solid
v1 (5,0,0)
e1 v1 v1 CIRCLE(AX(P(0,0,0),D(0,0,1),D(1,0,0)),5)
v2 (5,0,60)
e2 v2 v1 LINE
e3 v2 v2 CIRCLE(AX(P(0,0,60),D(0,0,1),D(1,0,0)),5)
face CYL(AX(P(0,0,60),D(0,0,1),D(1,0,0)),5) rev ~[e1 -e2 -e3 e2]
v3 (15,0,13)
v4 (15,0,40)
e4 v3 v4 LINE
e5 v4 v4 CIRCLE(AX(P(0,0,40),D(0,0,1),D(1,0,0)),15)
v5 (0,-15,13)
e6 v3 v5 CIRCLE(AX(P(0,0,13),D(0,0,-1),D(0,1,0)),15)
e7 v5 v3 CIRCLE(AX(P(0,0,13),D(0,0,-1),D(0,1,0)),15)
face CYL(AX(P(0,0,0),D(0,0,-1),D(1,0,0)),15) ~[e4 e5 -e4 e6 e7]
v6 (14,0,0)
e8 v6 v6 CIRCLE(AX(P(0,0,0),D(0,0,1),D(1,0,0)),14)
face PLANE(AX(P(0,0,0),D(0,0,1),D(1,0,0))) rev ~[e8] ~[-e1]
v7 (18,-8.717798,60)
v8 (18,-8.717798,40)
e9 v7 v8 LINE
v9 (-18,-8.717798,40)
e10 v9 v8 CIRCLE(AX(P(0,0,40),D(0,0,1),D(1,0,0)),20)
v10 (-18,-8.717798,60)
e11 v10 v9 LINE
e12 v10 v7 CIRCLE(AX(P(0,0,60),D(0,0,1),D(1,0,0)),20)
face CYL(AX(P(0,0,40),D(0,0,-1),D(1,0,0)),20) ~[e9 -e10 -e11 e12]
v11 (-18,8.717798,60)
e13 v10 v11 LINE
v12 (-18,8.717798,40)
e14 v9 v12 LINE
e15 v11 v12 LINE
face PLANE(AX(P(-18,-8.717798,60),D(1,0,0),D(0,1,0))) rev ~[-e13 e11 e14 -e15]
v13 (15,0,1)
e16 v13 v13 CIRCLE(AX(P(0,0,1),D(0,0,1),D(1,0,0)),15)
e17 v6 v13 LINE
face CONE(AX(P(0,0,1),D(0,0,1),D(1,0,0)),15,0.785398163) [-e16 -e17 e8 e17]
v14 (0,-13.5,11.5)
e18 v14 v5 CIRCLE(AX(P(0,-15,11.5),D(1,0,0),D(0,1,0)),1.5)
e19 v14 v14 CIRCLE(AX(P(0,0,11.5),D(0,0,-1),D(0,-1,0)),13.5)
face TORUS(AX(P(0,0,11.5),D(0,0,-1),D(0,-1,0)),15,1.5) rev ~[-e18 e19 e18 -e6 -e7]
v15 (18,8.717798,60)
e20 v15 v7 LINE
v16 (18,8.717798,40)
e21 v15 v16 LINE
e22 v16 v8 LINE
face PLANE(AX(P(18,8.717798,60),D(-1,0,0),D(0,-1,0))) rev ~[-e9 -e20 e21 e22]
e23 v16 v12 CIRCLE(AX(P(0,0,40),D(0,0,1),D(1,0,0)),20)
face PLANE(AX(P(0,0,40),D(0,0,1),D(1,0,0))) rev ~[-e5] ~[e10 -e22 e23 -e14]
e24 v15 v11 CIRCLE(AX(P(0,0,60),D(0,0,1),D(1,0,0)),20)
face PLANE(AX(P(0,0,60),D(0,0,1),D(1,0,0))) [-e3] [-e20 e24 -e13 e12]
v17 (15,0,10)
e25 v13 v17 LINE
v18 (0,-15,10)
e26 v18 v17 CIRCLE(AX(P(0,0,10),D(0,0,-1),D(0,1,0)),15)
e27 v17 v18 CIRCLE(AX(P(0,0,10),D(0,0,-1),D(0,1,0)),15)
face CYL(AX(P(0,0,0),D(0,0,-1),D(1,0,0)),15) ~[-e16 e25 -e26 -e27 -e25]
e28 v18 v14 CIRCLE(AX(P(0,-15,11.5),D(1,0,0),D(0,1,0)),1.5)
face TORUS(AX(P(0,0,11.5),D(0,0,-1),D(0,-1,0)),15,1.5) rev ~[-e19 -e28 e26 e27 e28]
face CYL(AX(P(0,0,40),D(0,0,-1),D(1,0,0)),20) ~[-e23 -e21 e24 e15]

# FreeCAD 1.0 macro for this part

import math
import FreeCAD as App
import Part
import Sketcher
Q = App.Units.Quantity


def edges_at(feature, points):
    """Names of the edges that pass closest to the given points."""
    edges = feature.Shape.Edges
    near = lambda p: min(range(len(edges)), key=lambda i: edges[i].distToShape(Part.Vertex(*p))[0])
    return sorted({f"Edge{near(p) + 1}" for p in points})

doc = App.newDocument("Part")
body = doc.addObject("PartDesign::Body", "Body")

# Sketch on XY plane
sketch1 = body.newObject("Sketcher::SketchObject", "Sketch")
sketch1.AttachmentSupport = (doc.getObject("XY_Plane"), [""])
sketch1.MapMode = "FlatFace"
sketch1.addGeometry(Part.Circle(App.Vector(0, 0, 0), App.Vector(0, 0, 1), 15), False)
sketch1.addConstraint(Sketcher.Constraint("Coincident", 0, 3, -1, 1))
sketch1.addConstraint(Sketcher.Constraint("Diameter", 0, Q("30 mm")))
pad1 = body.newObject("PartDesign::Pad", "Pad")
pad1.Profile = sketch1
pad1.Length = 40

# Sketch on XY plane
sketch2 = body.newObject("Sketcher::SketchObject", "Sketch001")
sketch2.AttachmentSupport = (doc.getObject("XY_Plane"), [""])
sketch2.MapMode = "FlatFace"
sketch2.AttachmentOffset = App.Placement(App.Vector(0, 0, 40), App.Rotation())
sketch2.addGeometry(Part.Circle(App.Vector(0, 0, 0), App.Vector(0, 0, 1), 20), False)
sketch2.addConstraint(Sketcher.Constraint("Coincident", 0, 3, -1, 1))
sketch2.addConstraint(Sketcher.Constraint("Diameter", 0, Q("40 mm")))
pad2 = body.newObject("PartDesign::Pad", "Pad001")
pad2.Profile = sketch2
pad2.Length = 20

# Sketch on XY plane
sketch3 = body.newObject("Sketcher::SketchObject", "Sketch002")
sketch3.AttachmentSupport = (doc.getObject("XY_Plane"), [""])
sketch3.MapMode = "FlatFace"
sketch3.AttachmentOffset = App.Placement(App.Vector(0, 0, 60), App.Rotation())
sketch3.addGeometry(Part.Circle(App.Vector(0, 0, 0), App.Vector(0, 0, 1), 5), False)
sketch3.addConstraint(Sketcher.Constraint("Coincident", 0, 3, -1, 1))
sketch3.addConstraint(Sketcher.Constraint("Diameter", 0, Q("10 mm")))
pocket1 = body.newObject("PartDesign::Pocket", "Pocket")
pocket1.Profile = sketch3
pocket1.Type = "ThroughAll"

# Sketch on XY plane
sketch4 = body.newObject("Sketcher::SketchObject", "Sketch003")
sketch4.AttachmentSupport = (doc.getObject("XY_Plane"), [""])
sketch4.MapMode = "FlatFace"
sketch4.AttachmentOffset = App.Placement(App.Vector(0, 0, 60), App.Rotation())
sketch4.addGeometry(Part.LineSegment(App.Vector(-18, -8.717798, 0), App.Vector(-18, 8.717798, 0)), False)
sketch4.addGeometry(Part.ArcOfCircle(Part.Circle(App.Vector(0, 0, 0), App.Vector(0, 0, 1), 20), math.radians(154.158067), math.radians(205.841933)), False)
sketch4.addGeometry(Part.LineSegment(App.Vector(18, 8.717798, 0), App.Vector(18, -8.717798, 0)), False)
sketch4.addGeometry(Part.ArcOfCircle(Part.Circle(App.Vector(0, 0, 0), App.Vector(0, 0, 1), 20), math.radians(-25.841933), math.radians(0)), False)
sketch4.addGeometry(Part.ArcOfCircle(Part.Circle(App.Vector(0, 0, 0), App.Vector(0, 0, 1), 20), math.radians(0), math.radians(25.841933)), False)
sketch4.addConstraint(Sketcher.Constraint("Coincident", 0, 1, 1, 2))
sketch4.addConstraint(Sketcher.Constraint("Coincident", 1, 1, 0, 2))
sketch4.addConstraint(Sketcher.Constraint("Coincident", 2, 2, 3, 1))
sketch4.addConstraint(Sketcher.Constraint("Tangent", 3, 2, 4, 1))
sketch4.addConstraint(Sketcher.Constraint("Coincident", 4, 2, 2, 1))
sketch4.addConstraint(Sketcher.Constraint("Vertical", 0))
sketch4.addConstraint(Sketcher.Constraint("Vertical", 2))
sketch4.addConstraint(Sketcher.Constraint("Coincident", 1, 3, -1, 1))
sketch4.addConstraint(Sketcher.Constraint("Coincident", 3, 3, -1, 1))
sketch4.addConstraint(Sketcher.Constraint("Equal", 1, 3))
sketch4.addConstraint(Sketcher.Constraint("Equal", 3, 4))
sketch4.addConstraint(Sketcher.Constraint("PointOnObject", 3, 2, -1))
sketch4.addConstraint(Sketcher.Constraint("Horizontal", 0, 1, 2, 2))
sketch4.addConstraint(Sketcher.Constraint("Radius", 1, Q("20 mm")))
sketch4.addConstraint(Sketcher.Constraint("DistanceX", 0, 1, -1, 1, Q("18 mm")))
pocket2 = body.newObject("PartDesign::Pocket", "Pocket001")
pocket2.Profile = sketch4
pocket2.Type = "ThroughAll"

# Sketch on YZ plane
sketch5 = body.newObject("Sketcher::SketchObject", "Sketch004")
sketch5.AttachmentSupport = (doc.getObject("YZ_Plane"), [""])
sketch5.MapMode = "FlatFace"
sketch5.addGeometry(Part.Circle(App.Vector(-15, 11.5, 0), App.Vector(0, 0, 1), 1.5), False)
sketch5.addConstraint(Sketcher.Constraint("Diameter", 0, Q("3 mm")))
sketch5.addConstraint(Sketcher.Constraint("DistanceX", 0, 3, -1, 1, Q("15 mm")))
sketch5.addConstraint(Sketcher.Constraint("DistanceY", -1, 1, 0, 3, Q("11.5 mm")))
groove = body.newObject("PartDesign::Groove", "Groove")
groove.Profile = sketch5
groove.ReferenceAxis = (sketch5, ["V_Axis"])
groove.Angle = 360
doc.recompute()

chamfer = body.newObject("PartDesign::Chamfer", "Chamfer")
chamfer.Base = (groove, edges_at(groove, [(-15, 0, 0)]))
chamfer.Size = 1

doc.recompute()
